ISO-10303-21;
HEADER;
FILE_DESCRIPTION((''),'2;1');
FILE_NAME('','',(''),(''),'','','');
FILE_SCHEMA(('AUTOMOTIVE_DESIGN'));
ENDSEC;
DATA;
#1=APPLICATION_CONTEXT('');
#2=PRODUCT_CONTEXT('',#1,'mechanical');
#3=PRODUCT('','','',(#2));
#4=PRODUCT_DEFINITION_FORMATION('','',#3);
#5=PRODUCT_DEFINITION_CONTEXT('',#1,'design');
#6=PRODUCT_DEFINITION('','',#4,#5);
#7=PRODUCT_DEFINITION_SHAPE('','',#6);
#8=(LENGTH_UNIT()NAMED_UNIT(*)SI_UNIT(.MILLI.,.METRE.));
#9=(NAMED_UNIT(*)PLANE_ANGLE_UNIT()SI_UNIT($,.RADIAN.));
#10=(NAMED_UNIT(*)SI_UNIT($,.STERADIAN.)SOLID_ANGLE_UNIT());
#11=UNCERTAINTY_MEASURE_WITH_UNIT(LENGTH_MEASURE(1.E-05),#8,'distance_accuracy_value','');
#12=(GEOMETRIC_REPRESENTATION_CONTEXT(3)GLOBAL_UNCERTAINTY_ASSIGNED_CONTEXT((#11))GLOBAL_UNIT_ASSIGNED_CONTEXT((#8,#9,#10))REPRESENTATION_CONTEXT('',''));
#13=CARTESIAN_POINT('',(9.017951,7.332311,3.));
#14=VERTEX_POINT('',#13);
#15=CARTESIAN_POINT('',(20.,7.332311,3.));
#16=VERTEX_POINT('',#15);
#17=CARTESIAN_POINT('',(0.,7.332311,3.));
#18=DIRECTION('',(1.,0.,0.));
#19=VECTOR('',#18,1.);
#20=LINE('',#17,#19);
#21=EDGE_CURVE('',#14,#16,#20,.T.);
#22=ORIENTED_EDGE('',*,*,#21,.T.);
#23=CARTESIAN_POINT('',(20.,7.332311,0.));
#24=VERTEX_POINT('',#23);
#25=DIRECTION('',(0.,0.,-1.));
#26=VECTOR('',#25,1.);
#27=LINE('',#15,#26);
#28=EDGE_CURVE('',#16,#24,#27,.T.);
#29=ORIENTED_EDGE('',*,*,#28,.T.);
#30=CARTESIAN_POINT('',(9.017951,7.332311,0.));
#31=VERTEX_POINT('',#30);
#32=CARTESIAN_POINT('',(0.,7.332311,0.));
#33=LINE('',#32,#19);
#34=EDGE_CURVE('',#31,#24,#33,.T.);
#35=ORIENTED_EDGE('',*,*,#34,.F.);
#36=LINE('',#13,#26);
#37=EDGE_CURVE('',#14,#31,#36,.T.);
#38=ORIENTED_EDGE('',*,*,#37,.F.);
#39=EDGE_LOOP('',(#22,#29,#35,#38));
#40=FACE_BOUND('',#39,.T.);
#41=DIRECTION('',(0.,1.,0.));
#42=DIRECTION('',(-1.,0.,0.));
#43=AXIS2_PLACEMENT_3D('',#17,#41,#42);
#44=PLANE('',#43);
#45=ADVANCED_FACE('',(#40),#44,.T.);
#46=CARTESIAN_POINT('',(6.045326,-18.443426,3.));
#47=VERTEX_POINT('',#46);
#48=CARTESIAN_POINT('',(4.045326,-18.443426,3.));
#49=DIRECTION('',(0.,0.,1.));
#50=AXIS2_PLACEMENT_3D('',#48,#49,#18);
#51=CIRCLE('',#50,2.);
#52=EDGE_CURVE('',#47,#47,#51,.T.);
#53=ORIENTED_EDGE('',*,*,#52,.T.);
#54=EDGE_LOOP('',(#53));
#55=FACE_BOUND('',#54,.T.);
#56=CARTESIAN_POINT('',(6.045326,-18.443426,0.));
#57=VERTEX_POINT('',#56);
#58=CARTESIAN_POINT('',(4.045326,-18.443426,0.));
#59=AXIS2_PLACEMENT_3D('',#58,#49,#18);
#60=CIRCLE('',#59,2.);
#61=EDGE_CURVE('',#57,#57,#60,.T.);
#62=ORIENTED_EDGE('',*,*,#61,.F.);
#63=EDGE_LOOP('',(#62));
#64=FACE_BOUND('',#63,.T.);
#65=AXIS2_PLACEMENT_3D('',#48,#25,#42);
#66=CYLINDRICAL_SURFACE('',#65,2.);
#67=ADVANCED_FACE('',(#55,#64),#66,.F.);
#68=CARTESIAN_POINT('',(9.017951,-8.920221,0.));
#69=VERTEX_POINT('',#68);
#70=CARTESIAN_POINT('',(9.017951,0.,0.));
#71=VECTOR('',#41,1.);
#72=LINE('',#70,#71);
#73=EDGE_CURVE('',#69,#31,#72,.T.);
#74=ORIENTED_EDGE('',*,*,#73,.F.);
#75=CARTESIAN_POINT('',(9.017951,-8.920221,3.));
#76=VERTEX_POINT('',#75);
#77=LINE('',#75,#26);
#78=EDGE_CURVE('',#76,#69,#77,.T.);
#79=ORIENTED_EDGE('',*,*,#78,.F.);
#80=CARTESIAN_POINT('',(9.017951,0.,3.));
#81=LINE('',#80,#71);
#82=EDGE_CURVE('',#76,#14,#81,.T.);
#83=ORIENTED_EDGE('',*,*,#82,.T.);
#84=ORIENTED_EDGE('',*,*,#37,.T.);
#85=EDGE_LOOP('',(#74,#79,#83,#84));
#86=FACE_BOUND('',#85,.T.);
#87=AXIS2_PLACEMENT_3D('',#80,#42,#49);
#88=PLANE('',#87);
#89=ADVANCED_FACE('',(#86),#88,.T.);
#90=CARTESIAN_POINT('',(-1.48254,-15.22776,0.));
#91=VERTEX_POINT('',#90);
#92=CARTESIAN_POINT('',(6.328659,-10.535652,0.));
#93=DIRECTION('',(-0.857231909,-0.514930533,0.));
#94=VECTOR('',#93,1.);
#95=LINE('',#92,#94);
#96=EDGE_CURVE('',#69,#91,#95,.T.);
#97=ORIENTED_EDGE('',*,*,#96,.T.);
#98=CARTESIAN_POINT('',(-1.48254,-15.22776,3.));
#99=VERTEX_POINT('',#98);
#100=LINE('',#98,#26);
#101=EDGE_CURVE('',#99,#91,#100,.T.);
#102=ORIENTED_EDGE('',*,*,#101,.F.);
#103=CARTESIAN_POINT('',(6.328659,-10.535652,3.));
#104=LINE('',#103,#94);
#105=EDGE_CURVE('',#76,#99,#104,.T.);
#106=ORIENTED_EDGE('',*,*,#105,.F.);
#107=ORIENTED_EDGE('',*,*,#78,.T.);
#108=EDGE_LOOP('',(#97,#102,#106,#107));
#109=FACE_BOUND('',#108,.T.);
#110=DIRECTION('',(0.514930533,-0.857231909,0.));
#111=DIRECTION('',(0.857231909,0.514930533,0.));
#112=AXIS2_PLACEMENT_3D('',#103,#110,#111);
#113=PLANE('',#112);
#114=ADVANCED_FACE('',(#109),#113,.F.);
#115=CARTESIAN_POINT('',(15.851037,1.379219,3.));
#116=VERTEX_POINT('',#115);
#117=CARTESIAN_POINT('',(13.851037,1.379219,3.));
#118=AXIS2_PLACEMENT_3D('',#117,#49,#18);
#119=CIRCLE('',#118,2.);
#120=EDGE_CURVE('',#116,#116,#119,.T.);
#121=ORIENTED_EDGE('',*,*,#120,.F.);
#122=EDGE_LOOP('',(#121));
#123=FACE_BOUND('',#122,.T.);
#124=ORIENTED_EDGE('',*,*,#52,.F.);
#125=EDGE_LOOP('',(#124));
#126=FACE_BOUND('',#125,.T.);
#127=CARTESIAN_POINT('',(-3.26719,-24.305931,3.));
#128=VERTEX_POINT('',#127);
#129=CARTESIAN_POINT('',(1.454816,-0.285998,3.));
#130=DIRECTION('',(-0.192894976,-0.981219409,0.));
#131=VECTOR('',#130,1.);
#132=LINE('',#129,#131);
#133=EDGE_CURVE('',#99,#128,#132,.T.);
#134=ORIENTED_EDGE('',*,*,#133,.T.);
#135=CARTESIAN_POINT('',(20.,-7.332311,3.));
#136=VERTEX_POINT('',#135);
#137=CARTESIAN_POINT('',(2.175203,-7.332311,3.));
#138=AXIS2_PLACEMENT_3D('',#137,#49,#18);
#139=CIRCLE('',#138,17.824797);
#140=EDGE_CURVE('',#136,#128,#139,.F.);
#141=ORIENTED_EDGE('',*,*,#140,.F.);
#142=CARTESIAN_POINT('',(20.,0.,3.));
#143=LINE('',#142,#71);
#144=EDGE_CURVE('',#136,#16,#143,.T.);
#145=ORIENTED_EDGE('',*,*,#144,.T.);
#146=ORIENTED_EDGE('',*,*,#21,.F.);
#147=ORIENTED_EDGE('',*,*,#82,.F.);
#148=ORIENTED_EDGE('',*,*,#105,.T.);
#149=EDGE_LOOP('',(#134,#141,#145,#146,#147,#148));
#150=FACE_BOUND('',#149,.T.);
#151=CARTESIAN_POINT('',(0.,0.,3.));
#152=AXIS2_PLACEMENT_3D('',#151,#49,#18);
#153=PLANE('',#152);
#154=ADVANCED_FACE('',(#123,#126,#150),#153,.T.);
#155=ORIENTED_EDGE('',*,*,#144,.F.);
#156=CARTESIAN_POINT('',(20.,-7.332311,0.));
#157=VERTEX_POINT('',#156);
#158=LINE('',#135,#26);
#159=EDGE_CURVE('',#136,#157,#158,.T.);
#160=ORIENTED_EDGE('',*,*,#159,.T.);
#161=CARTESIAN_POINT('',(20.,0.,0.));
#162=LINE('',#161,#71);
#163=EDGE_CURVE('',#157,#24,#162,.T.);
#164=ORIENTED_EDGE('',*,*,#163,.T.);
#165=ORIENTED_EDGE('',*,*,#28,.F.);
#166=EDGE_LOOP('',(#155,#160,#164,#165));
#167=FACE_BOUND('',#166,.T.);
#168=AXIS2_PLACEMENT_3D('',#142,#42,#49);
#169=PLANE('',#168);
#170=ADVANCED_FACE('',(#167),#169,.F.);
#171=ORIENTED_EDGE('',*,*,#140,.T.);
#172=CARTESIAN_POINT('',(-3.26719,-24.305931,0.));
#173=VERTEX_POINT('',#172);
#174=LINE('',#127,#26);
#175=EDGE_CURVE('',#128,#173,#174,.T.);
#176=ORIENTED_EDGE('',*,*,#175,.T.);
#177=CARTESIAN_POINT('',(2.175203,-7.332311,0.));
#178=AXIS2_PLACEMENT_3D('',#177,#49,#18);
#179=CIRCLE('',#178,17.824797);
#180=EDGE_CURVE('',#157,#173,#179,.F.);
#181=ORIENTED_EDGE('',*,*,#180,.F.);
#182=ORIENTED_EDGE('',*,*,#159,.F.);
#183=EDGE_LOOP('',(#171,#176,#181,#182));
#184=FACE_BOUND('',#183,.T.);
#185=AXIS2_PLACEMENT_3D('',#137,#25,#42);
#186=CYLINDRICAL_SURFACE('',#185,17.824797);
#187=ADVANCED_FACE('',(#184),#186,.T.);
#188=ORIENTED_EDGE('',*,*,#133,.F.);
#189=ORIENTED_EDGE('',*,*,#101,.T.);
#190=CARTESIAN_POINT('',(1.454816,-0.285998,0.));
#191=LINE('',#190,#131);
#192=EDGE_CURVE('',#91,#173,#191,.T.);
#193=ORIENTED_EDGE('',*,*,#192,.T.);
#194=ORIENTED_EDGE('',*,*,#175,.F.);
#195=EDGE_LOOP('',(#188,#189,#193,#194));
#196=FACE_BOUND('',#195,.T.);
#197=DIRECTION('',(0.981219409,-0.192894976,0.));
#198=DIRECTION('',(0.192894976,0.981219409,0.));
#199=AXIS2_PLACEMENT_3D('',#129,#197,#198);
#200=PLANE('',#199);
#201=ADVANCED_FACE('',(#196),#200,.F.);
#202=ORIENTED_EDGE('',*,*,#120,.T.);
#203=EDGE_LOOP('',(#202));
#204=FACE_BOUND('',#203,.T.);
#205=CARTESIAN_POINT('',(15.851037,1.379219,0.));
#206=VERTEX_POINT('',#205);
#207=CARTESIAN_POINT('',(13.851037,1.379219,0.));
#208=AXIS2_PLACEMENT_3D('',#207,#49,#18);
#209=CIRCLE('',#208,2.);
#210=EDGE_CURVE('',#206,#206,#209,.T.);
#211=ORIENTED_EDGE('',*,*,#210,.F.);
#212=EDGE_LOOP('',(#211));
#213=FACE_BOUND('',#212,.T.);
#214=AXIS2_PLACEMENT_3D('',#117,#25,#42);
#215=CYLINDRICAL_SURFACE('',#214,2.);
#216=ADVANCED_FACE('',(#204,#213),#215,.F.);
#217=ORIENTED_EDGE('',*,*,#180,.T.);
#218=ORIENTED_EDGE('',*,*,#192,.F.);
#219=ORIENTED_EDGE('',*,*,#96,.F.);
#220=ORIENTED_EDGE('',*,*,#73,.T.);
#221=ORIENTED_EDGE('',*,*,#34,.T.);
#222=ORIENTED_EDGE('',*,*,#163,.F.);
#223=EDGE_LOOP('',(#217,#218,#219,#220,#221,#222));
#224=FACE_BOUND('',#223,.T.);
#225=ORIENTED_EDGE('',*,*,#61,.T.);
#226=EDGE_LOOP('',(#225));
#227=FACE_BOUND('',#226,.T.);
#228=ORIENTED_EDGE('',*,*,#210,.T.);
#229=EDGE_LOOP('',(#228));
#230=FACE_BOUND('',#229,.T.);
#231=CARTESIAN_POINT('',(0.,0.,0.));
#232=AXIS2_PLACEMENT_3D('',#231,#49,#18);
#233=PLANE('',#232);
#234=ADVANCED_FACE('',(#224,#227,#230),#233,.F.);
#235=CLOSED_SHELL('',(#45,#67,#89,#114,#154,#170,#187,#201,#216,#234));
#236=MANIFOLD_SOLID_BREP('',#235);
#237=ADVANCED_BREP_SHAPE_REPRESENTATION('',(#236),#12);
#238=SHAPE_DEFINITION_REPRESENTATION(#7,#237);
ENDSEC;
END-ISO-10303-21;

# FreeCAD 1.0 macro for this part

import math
import FreeCAD as App
import Part
import Sketcher

V = App.Vector
Q = App.Units.Quantity

doc = App.newDocument("Part")
params = doc.addObject("Spreadsheet::Sheet", "Params")
for row, (alias, value) in enumerate([
    ("sketch1_diameter", "4 mm"),
    ("pad1_length", "3 mm"),
], start=1):
    params.set(f"A{row}", alias)
    params.set(f"B{row}", "=" + value)
    params.setAlias(f"B{row}", alias)

body = doc.addObject("PartDesign::Body", "Body")

sketch1 = body.newObject("Sketcher::SketchObject", "Sketch")
sketch1.AttachmentSupport = (doc.getObject("XY_Plane"), [""])
sketch1.MapMode = "FlatFace"
sketch1.addGeometry(Part.LineSegment(V(20, 7.3, 0), V(9, 7.3, 0)), False)
sketch1.addGeometry(Part.LineSegment(V(9, 7.3, 0), V(9, -8.9, 0)), False)
sketch1.addGeometry(Part.LineSegment(V(9, -8.9, 0), V(-1.5, -15.2, 0)), False)
sketch1.addGeometry(Part.LineSegment(V(-1.5, -15.2, 0), V(-3.3, -24.3, 0)), False)
sketch1.addGeometry(Part.ArcOfCircle(Part.Circle(V(2.2, -7.3, 0), V(0, 0, 1), 17.8), math.radians(-108), math.radians(0)), False)
sketch1.addGeometry(Part.LineSegment(V(20, -7.3, 0), V(20, 7.3, 0)), False)
sketch1.addGeometry(Part.Circle(V(13.9, 1.4, 0), V(0, 0, 1), 2), False)
sketch1.addGeometry(Part.Circle(V(4, -18.4, 0), V(0, 0, 1), 2), False)
sketch1.addConstraint(Sketcher.Constraint("Coincident", 0, 2, 1, 1))
sketch1.addConstraint(Sketcher.Constraint("Coincident", 1, 2, 2, 1))
sketch1.addConstraint(Sketcher.Constraint("Coincident", 2, 2, 3, 1))
sketch1.addConstraint(Sketcher.Constraint("Coincident", 3, 2, 4, 1))
sketch1.addConstraint(Sketcher.Constraint("Tangent", 4, 2, 5, 1))
sketch1.addConstraint(Sketcher.Constraint("Coincident", 5, 2, 0, 1))
sketch1.addConstraint(Sketcher.Constraint("Horizontal", 0))
sketch1.addConstraint(Sketcher.Constraint("Vertical", 1))
sketch1.addConstraint(Sketcher.Constraint("Vertical", 5))
sketch1.addConstraint(Sketcher.Constraint("Equal", 6, 7))
sketch1.addConstraint(Sketcher.Constraint("Diameter", 6, Q("4 mm")))
sketch1.addConstraint(Sketcher.Constraint("DistanceX", -1, 1, 4, 2, Q("20 mm")))
sketch1.addConstraint(Sketcher.Constraint("Radius", 4, Q("17.824797 mm")))
sketch1.addConstraint(Sketcher.Constraint("Distance", 2, Q("12.2493 mm")))
sketch1.addConstraint(Sketcher.Constraint("DistanceX", 0, 2, 0, 1, Q("10.982049 mm")))
sketch1.addConstraint(Sketcher.Constraint("DistanceY", 1, 2, 1, 1, Q("16.252533 mm")))
sketch1.addConstraint(Sketcher.Constraint("DistanceY", 5, 1, 5, 2, Q("14.664622 mm")))
sketch1.addConstraint(Sketcher.Constraint("DistanceY", 4, 3, -1, 1, Q("7.332311 mm")))
sketch1.addConstraint(Sketcher.Constraint("DistanceY", -1, 1, 6, 3, Q("1.379219 mm")))
sketch1.addConstraint(Sketcher.Constraint("DistanceX", 2, 2, -1, 1, Q("1.48254 mm")))
sketch1.addConstraint(Sketcher.Constraint("DistanceX", 3, 2, -1, 1, Q("3.26719 mm")))
sketch1.addConstraint(Sketcher.Constraint("DistanceX", 7, 3, 6, 3, Q("9.80571 mm")))
sketch1.addConstraint(Sketcher.Constraint("DistanceX", -1, 1, 6, 3, Q("13.851037 mm")))
sketch1.addConstraint(Sketcher.Constraint("DistanceY", 7, 3, -1, 1, Q("18.443426 mm")))
sketch1.setExpression("Constraints[10]", "Params.sketch1_diameter")
pad1 = body.newObject("PartDesign::Pad", "Pad")
pad1.Profile = sketch1
pad1.setExpression("Length", "Params.pad1_length")

doc.recompute()
